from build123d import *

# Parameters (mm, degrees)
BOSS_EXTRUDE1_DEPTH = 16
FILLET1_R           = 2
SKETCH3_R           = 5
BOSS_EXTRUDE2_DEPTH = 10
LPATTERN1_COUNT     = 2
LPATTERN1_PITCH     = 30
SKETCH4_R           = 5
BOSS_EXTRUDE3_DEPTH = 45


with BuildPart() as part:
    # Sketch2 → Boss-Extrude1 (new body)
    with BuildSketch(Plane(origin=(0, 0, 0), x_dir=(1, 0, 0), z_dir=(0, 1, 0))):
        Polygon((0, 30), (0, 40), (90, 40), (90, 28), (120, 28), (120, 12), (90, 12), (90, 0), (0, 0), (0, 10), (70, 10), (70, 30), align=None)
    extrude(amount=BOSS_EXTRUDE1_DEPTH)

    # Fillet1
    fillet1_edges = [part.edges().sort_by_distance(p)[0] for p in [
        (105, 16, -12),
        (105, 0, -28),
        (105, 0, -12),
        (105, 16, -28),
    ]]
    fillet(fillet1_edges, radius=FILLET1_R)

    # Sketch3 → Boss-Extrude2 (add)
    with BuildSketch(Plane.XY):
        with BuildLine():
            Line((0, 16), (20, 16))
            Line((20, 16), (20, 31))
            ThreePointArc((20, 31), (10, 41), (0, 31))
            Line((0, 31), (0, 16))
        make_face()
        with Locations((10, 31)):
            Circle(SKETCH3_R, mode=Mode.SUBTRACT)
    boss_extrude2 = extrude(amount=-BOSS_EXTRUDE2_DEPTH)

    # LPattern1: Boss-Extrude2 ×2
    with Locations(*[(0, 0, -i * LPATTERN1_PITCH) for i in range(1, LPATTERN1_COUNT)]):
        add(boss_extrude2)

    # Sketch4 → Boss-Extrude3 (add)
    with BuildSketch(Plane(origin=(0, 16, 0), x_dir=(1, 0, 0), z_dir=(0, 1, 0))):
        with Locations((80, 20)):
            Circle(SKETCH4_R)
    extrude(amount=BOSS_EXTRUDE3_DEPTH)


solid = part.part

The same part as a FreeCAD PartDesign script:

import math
import FreeCAD as App
import Part
import Sketcher

V = App.Vector
Q = App.Units.Quantity


def edges_at(feature, points):
    """Names of the edges that pass closest to the given points."""
    edges = feature.Shape.Edges
    near = lambda p: min(range(len(edges)), key=lambda i: edges[i].distToShape(Part.Vertex(*p))[0])
    return sorted({f"Edge{near(p) + 1}" for p in points})

doc = App.newDocument("Part")
body = doc.addObject("PartDesign::Body", "Body")

# Sketch on XZ plane
sketch1 = body.newObject("Sketcher::SketchObject", "Sketch")
sketch1.AttachmentSupport = (doc.getObject("XZ_Plane"), [""])
sketch1.MapMode = "FlatFace"
sketch1.addGeometry([
    Part.LineSegment(V(0, -40, 0), V(0, -30, 0)),  # 0
    Part.LineSegment(V(0, -30, 0), V(70, -30, 0)),  # 1
    Part.LineSegment(V(70, -30, 0), V(70, -10, 0)),  # 2
    Part.LineSegment(V(70, -10, 0), V(0, -10, 0)),  # 3
    Part.LineSegment(V(0, -10, 0), V(0, 0, 0)),  # 4
    Part.LineSegment(V(0, 0, 0), V(90, 0, 0)),  # 5
    Part.LineSegment(V(90, 0, 0), V(90, -12, 0)),  # 6
    Part.LineSegment(V(90, -12, 0), V(120, -12, 0)),  # 7
    Part.LineSegment(V(120, -12, 0), V(120, -28, 0)),  # 8
    Part.LineSegment(V(120, -28, 0), V(90, -28, 0)),  # 9
    Part.LineSegment(V(90, -28, 0), V(90, -40, 0)),  # 10
    Part.LineSegment(V(90, -40, 0), V(0, -40, 0)),  # 11
], False)
sketch1.addConstraint([
    Sketcher.Constraint("Coincident", 0, 2, 1, 1),
    Sketcher.Constraint("Coincident", 1, 2, 2, 1),
    Sketcher.Constraint("Coincident", 2, 2, 3, 1),
    Sketcher.Constraint("Coincident", 3, 2, 4, 1),
    Sketcher.Constraint("Coincident", 4, 2, 5, 1),
    Sketcher.Constraint("Coincident", 5, 2, 6, 1),
    Sketcher.Constraint("Coincident", 6, 2, 7, 1),
    Sketcher.Constraint("Coincident", 7, 2, 8, 1),
    Sketcher.Constraint("Coincident", 8, 2, 9, 1),
    Sketcher.Constraint("Coincident", 9, 2, 10, 1),
    Sketcher.Constraint("Coincident", 10, 2, 11, 1),
    Sketcher.Constraint("Coincident", 11, 2, 0, 1),
    Sketcher.Constraint("Vertical", 0),
    Sketcher.Constraint("Horizontal", 1),
    Sketcher.Constraint("Vertical", 2),
    Sketcher.Constraint("Horizontal", 3),
    Sketcher.Constraint("Vertical", 4),
    Sketcher.Constraint("Horizontal", 5),
    Sketcher.Constraint("Vertical", 6),
    Sketcher.Constraint("Horizontal", 7),
    Sketcher.Constraint("Vertical", 8),
    Sketcher.Constraint("Horizontal", 9),
    Sketcher.Constraint("Vertical", 10),
    Sketcher.Constraint("Horizontal", 11),
    Sketcher.Constraint("Coincident", 4, 2, -1, 1),
    Sketcher.Constraint("PointOnObject", 0, 2, -2),
    Sketcher.Constraint("Vertical", 6, 2, 9, 2),
    Sketcher.Constraint("Equal", 0, 4),
    Sketcher.Constraint("Equal", 6, 10),
    Sketcher.Constraint("DistanceX", 1, 1, 1, 2, Q("70 mm")),
    Sketcher.Constraint("DistanceX", 5, 1, 5, 2, Q("90 mm")),
    Sketcher.Constraint("DistanceX", 7, 1, 7, 2, Q("30 mm")),
    Sketcher.Constraint("DistanceY", 0, 1, 0, 2, Q("10 mm")),
    Sketcher.Constraint("DistanceY", 2, 1, 2, 2, Q("20 mm")),
    Sketcher.Constraint("DistanceY", 6, 2, 6, 1, Q("12 mm")),
])
pad1 = body.newObject("PartDesign::Pad", "Pad")
pad1.Profile = sketch1
pad1.Length = 16
pad1.Reversed = True
doc.recompute()

fillet = body.newObject("PartDesign::Fillet", "Fillet")
fillet.Base = (pad1, edges_at(pad1, [
    (105, 16, -12),
    (105, 0, -28),
    (105, 0, -12),
    (105, 16, -28),
]))
fillet.Radius = 2

# Sketch on XY plane
sketch2 = body.newObject("Sketcher::SketchObject", "Sketch001")
sketch2.AttachmentSupport = (doc.getObject("XY_Plane"), [""])
sketch2.MapMode = "FlatFace"
sketch2.addGeometry([
    Part.LineSegment(V(0, 16, 0), V(20, 16, 0)),  # 0
    Part.LineSegment(V(20, 16, 0), V(20, 31, 0)),  # 1
    Part.ArcOfCircle(Part.Circle(V(10, 31, 0), V(0, 0, 1), 10), math.radians(0), math.radians(180)),  # 2
    Part.LineSegment(V(0, 31, 0), V(0, 16, 0)),  # 3
    Part.Circle(V(10, 31, 0), V(0, 0, 1), 5),  # 4
], False)
sketch2.addConstraint([
    Sketcher.Constraint("Coincident", 0, 2, 1, 1),
    Sketcher.Constraint("Tangent", 1, 2, 2, 1),
    Sketcher.Constraint("Tangent", 2, 2, 3, 1),
    Sketcher.Constraint("Coincident", 3, 2, 0, 1),
    Sketcher.Constraint("Horizontal", 0),
    Sketcher.Constraint("Vertical", 1),
    Sketcher.Constraint("Vertical", 3),
    Sketcher.Constraint("Coincident", 4, 3, 2, 3),
    Sketcher.Constraint("PointOnObject", 2, 2, -2),
    Sketcher.Constraint("Diameter", 4, Q("10 mm")),
    Sketcher.Constraint("Radius", 2, Q("10 mm")),
    Sketcher.Constraint("DistanceY", 1, 1, 1, 2, Q("15 mm")),
    Sketcher.Constraint("DistanceY", -1, 1, 2, 3, Q("31 mm")),
])
pad2 = body.newObject("PartDesign::Pad", "Pad001")
pad2.Profile = sketch2
pad2.Length = 10
pad2.Reversed = True
doc.recompute()

linearpattern = body.newObject("PartDesign::LinearPattern", "LinearPattern")
linearpattern.Originals = [pad2]
linearpattern.Direction = (doc.getObject("Z_Axis"), [""])
linearpattern.Mode = "offset"
linearpattern.Offset = 30
linearpattern.Occurrences = 2
linearpattern.Reversed = True
body.Tip = linearpattern

# Sketch on XZ plane
sketch3 = body.newObject("Sketcher::SketchObject", "Sketch002")
sketch3.AttachmentSupport = (doc.getObject("XZ_Plane"), [""])
sketch3.MapMode = "FlatFace"
sketch3.AttachmentOffset = App.Placement(V(0, 0, -16), App.Rotation())
sketch3.addGeometry(Part.Circle(V(80, -20, 0), V(0, 0, 1), 5), False)
sketch3.addConstraint([
    Sketcher.Constraint("Diameter", 0, Q("10 mm")),
    Sketcher.Constraint("DistanceX", -1, 1, 0, 3, Q("80 mm")),
    Sketcher.Constraint("DistanceY", 0, 3, -1, 1, Q("20 mm")),
])
pad3 = body.newObject("PartDesign::Pad", "Pad002")
pad3.Profile = sketch3
pad3.Length = 45
pad3.Reversed = True

doc.recompute()
